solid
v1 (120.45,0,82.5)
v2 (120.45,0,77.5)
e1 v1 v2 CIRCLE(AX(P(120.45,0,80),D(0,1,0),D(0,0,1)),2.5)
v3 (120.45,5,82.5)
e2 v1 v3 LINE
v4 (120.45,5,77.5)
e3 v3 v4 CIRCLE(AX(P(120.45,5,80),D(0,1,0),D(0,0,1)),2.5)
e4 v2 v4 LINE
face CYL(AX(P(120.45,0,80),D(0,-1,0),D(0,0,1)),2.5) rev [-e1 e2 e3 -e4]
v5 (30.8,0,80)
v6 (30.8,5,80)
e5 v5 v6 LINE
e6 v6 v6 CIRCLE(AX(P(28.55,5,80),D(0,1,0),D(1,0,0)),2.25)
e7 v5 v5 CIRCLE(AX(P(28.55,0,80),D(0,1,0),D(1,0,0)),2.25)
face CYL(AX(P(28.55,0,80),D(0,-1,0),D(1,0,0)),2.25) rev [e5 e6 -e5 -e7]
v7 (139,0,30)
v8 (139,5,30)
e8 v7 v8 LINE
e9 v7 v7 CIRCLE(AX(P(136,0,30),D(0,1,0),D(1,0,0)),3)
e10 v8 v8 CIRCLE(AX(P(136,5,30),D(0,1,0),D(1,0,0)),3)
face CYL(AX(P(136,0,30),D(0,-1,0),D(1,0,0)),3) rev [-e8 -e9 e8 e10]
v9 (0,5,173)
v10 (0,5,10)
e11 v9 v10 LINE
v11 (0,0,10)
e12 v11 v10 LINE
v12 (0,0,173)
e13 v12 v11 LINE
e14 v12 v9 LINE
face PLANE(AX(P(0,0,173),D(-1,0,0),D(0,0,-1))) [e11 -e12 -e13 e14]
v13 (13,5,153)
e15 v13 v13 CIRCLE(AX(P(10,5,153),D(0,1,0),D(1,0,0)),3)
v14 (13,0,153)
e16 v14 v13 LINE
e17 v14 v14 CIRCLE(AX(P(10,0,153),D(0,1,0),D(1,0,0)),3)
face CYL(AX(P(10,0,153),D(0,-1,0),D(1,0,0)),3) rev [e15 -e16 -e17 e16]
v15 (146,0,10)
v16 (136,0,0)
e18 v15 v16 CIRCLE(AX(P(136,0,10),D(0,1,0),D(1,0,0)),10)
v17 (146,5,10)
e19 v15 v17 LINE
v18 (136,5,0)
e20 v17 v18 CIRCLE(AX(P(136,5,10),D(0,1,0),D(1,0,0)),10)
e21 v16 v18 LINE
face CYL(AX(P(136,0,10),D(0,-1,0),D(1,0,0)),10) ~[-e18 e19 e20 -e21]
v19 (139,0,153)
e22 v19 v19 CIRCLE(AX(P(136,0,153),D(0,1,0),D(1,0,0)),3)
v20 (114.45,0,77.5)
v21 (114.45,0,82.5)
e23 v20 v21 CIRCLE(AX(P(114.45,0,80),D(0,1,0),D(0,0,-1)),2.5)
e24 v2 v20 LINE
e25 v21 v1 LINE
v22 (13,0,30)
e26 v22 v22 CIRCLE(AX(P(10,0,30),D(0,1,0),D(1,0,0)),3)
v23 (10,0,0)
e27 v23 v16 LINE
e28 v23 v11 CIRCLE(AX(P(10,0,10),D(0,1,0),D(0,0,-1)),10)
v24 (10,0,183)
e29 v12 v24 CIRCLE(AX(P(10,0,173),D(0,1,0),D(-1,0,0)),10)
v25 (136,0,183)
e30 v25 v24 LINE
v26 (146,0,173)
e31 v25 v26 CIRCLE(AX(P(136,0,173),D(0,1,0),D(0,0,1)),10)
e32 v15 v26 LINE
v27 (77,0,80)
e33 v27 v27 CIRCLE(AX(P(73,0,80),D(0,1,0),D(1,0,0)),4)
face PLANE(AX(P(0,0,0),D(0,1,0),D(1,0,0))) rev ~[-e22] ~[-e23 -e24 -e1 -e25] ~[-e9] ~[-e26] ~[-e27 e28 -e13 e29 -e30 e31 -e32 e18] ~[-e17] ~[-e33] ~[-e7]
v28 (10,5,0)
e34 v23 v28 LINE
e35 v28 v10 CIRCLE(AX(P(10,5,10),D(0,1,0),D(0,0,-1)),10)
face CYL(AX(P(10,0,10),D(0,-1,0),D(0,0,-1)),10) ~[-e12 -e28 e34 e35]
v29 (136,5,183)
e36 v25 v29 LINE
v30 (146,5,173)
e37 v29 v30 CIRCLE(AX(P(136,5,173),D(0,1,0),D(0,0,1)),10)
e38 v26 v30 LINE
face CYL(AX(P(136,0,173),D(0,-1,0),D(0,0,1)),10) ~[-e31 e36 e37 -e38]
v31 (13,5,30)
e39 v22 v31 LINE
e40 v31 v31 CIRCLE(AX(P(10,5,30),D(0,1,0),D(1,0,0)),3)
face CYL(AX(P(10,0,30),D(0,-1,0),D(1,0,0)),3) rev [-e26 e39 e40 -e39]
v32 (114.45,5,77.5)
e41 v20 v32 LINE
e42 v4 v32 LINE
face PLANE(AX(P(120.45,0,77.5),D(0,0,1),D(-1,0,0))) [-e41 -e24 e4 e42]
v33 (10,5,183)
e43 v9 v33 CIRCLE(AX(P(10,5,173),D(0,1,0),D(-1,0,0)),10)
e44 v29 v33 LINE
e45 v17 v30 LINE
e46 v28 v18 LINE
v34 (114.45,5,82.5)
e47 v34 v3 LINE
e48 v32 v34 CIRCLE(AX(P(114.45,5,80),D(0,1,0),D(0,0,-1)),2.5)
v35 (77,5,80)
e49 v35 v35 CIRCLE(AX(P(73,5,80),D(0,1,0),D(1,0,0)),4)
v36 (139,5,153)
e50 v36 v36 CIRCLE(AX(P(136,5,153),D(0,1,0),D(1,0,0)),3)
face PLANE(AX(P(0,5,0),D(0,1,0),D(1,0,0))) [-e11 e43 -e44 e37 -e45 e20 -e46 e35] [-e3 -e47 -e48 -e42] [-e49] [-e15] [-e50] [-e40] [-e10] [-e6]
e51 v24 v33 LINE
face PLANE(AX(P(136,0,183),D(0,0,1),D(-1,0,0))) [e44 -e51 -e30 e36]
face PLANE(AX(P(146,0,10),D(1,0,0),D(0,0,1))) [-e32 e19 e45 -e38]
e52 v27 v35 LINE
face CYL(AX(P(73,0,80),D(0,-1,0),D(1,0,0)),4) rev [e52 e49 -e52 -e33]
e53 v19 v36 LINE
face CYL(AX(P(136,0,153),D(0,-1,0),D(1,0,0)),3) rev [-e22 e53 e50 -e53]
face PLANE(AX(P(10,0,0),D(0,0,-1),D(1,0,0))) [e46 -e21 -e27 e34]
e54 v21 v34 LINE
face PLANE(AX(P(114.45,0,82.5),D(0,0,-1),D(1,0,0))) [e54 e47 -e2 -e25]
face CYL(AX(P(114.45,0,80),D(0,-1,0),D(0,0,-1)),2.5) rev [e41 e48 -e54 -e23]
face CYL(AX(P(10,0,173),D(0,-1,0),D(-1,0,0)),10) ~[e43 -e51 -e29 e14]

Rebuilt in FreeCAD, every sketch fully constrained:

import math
import FreeCAD as App
import Part
import Sketcher
Q = App.Units.Quantity

doc = App.newDocument("Part")
params = doc.addObject("Spreadsheet::Sheet", "Params")
for row, (alias, value) in enumerate([
    ("sketch1_diameter", "6 mm"),
    ("sketch1_diameter2", "8 mm"),
    ("sketch1_radius", "10 mm"),
    ("sketch1_diameter3", "4.5 mm"),
    ("sketch1_radius2", "2.5 mm"),
    ("pad1_length", "5 mm"),
], start=1):
    params.set(f"A{row}", alias)
    params.set(f"B{row}", "=" + value)
    params.setAlias(f"B{row}", alias)

body = doc.addObject("PartDesign::Body", "Body")

# Sketch on XZ plane
sketch1 = body.newObject("Sketcher::SketchObject", "Sketch")
sketch1.AttachmentSupport = (doc.getObject("XZ_Plane"), [""])
sketch1.MapMode = "FlatFace"
sketch1.addGeometry([
    Part.LineSegment(App.Vector(136, 0, 0), App.Vector(10, 0, 0)),  # 0
    Part.ArcOfCircle(Part.Circle(App.Vector(10, 10, 0), App.Vector(0, 0, 1), 10), math.radians(180), math.radians(270)),  # 1
    Part.LineSegment(App.Vector(0, 10, 0), App.Vector(0, 173, 0)),  # 2
    Part.ArcOfCircle(Part.Circle(App.Vector(10, 173, 0), App.Vector(0, 0, 1), 10), math.radians(90), math.radians(180)),  # 3
    Part.LineSegment(App.Vector(10, 183, 0), App.Vector(136, 183, 0)),  # 4
    Part.ArcOfCircle(Part.Circle(App.Vector(136, 173, 0), App.Vector(0, 0, 1), 10), math.radians(0), math.radians(90)),  # 5
    Part.LineSegment(App.Vector(146, 173, 0), App.Vector(146, 10, 0)),  # 6
    Part.ArcOfCircle(Part.Circle(App.Vector(136, 10, 0), App.Vector(0, 0, 1), 10), math.radians(-90), math.radians(0)),  # 7
    Part.Circle(App.Vector(10, 153, 0), App.Vector(0, 0, 1), 3),  # 8
    Part.Circle(App.Vector(136, 153, 0), App.Vector(0, 0, 1), 3),  # 9
    Part.Circle(App.Vector(10, 30, 0), App.Vector(0, 0, 1), 3),  # 10
    Part.Circle(App.Vector(136, 30, 0), App.Vector(0, 0, 1), 3),  # 11
    Part.LineSegment(App.Vector(114.5, 77.5, 0), App.Vector(120.5, 77.5, 0)),  # 12
    Part.ArcOfCircle(Part.Circle(App.Vector(120.5, 80, 0), App.Vector(0, 0, 1), 2.5), math.radians(-90), math.radians(90)),  # 13
    Part.LineSegment(App.Vector(120.5, 82.5, 0), App.Vector(114.5, 82.5, 0)),  # 14
    Part.ArcOfCircle(Part.Circle(App.Vector(114.5, 80, 0), App.Vector(0, 0, 1), 2.5), math.radians(90), math.radians(270)),  # 15
    Part.Circle(App.Vector(28.6, 80, 0), App.Vector(0, 0, 1), 2.2),  # 16
    Part.Circle(App.Vector(73, 80, 0), App.Vector(0, 0, 1), 4),  # 17
], False)
sketch1.addConstraint([
    Sketcher.Constraint("Tangent", 0, 2, 1, 2),
    Sketcher.Constraint("Tangent", 1, 1, 2, 1),
    Sketcher.Constraint("Tangent", 2, 2, 3, 2),
    Sketcher.Constraint("Tangent", 3, 1, 4, 1),
    Sketcher.Constraint("Tangent", 4, 2, 5, 2),
    Sketcher.Constraint("Tangent", 5, 1, 6, 1),
    Sketcher.Constraint("Tangent", 6, 2, 7, 2),
    Sketcher.Constraint("Tangent", 7, 1, 0, 1),
    Sketcher.Constraint("Tangent", 12, 2, 13, 1),
    Sketcher.Constraint("Tangent", 13, 2, 14, 1),
    Sketcher.Constraint("Tangent", 14, 2, 15, 1),
    Sketcher.Constraint("Tangent", 15, 2, 12, 1),
    Sketcher.Constraint("Horizontal", 0),
    Sketcher.Constraint("Vertical", 2),
    Sketcher.Constraint("Horizontal", 4),
    Sketcher.Constraint("Vertical", 6),
    Sketcher.Constraint("Horizontal", 12),
    Sketcher.Constraint("Horizontal", 14),
    Sketcher.Constraint("Equal", 1, 3),
    Sketcher.Constraint("Equal", 3, 5),
    Sketcher.Constraint("Equal", 5, 7),
    Sketcher.Constraint("Equal", 8, 9),
    Sketcher.Constraint("Equal", 9, 10),
    Sketcher.Constraint("Equal", 10, 11),
    Sketcher.Constraint("PointOnObject", 0, 2, -1),
    Sketcher.Constraint("PointOnObject", 1, 1, -2),
    Sketcher.Constraint("Horizontal", 8, 3, 9, 3),
    Sketcher.Constraint("Horizontal", 10, 3, 11, 3),
    Sketcher.Constraint("Horizontal", 15, 3, 16, 3),
    Sketcher.Constraint("Horizontal", 16, 3, 17, 3),
    Sketcher.Constraint("Vertical", 3, 3, 8, 3),
    Sketcher.Constraint("Vertical", 7, 3, 9, 3),
    Sketcher.Constraint("Vertical", 8, 3, 10, 3),
    Sketcher.Constraint("Vertical", 9, 3, 11, 3),
    Sketcher.Constraint("Diameter", 8, Q("6 mm")),
    Sketcher.Constraint("Diameter", 17, Q("8 mm")),
    Sketcher.Constraint("Radius", 1, Q("10 mm")),
    Sketcher.Constraint("Diameter", 16, Q("4.5 mm")),
    Sketcher.Constraint("Radius", 13, Q("2.5 mm")),
    Sketcher.Constraint("DistanceX", 12, 1, 12, 2, Q("6 mm")),
    Sketcher.Constraint("DistanceY", -1, 1, 10, 3, Q("30 mm")),
    Sketcher.Constraint("DistanceY", -1, 1, 3, 1, Q("183 mm")),
    Sketcher.Constraint("DistanceX", -1, 1, 5, 1, Q("146 mm")),
    Sketcher.Constraint("DistanceY", 8, 3, 3, 3, Q("20 mm")),
    Sketcher.Constraint("DistanceX", 16, 3, 17, 3, Q("44.45 mm")),
    Sketcher.Constraint("DistanceY", -1, 1, 13, 3, Q("80 mm")),
    Sketcher.Constraint("DistanceX", -1, 1, 17, 3, Q("73 mm")),
    Sketcher.Constraint("DistanceX", 16, 3, 15, 3, Q("85.9 mm")),
])
sketch1.setExpression("Constraints[34]", "Params.sketch1_diameter")
sketch1.setExpression("Constraints[35]", "Params.sketch1_diameter2")
sketch1.setExpression("Constraints[36]", "Params.sketch1_radius")
sketch1.setExpression("Constraints[37]", "Params.sketch1_diameter3")
sketch1.setExpression("Constraints[38]", "Params.sketch1_radius2")
pad1 = body.newObject("PartDesign::Pad", "Pad")
pad1.Profile = sketch1
pad1.setExpression("Length", "Params.pad1_length")
pad1.Reversed = True

doc.recompute()
